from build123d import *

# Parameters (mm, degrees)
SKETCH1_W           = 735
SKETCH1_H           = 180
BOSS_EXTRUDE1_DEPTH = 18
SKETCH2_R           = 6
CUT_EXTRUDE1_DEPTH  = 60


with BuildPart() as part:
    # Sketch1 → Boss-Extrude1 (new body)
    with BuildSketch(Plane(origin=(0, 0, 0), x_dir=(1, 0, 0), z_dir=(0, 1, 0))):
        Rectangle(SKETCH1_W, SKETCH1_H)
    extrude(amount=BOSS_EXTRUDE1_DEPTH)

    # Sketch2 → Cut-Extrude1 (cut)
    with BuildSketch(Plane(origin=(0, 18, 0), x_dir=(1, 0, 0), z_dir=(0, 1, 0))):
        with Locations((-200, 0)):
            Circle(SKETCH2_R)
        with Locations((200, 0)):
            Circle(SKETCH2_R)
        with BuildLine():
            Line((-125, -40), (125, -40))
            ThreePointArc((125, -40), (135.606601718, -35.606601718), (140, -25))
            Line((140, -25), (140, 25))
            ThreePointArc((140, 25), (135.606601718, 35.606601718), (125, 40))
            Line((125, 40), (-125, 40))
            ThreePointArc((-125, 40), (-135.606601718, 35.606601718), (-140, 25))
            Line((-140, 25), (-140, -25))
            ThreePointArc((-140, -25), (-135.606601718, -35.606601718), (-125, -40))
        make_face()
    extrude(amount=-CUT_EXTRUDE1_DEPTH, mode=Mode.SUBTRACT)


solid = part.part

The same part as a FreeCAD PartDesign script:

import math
import FreeCAD as App
import Part
import Sketcher

V = App.Vector


def add_polygon(sketch, points):
    """Adds a closed chain of lines whose ends are joined by coincident constraints."""
    first, n = sketch.GeometryCount, len(points)
    for a, b in zip(points, points[1:] + points[:1]):
        sketch.addGeometry(Part.LineSegment(App.Vector(*a, 0), App.Vector(*b, 0)), False)
    for i in range(n):
        sketch.addConstraint(Sketcher.Constraint("Coincident", first + i, 2, first + (i + 1) % n, 1))

doc = App.newDocument("Part")
params = doc.addObject("Spreadsheet::Sheet", "Params")
for row, (alias, value) in enumerate([
    ("sketch1_width", "735 mm"),
    ("sketch1_height", "180 mm"),
    ("pad1_length", "18 mm"),
    ("sketch2_diameter", "12 mm"),
    ("sketch2_radius", "15 mm"),
    ("sketch2_width", "250 mm"),
    ("sketch2_height", "50 mm"),
    ("pocket1_length", "60 mm"),
], start=1):
    params.set(f"A{row}", alias)
    params.set(f"B{row}", "=" + value)
    params.setAlias(f"B{row}", alias)

body = doc.addObject("PartDesign::Body", "Body")

# Sketch on XZ plane
sketch1 = body.newObject("Sketcher::SketchObject", "Sketch")
sketch1.AttachmentSupport = (doc.getObject("XZ_Plane"), [""])
sketch1.MapMode = "FlatFace"
add_polygon(sketch1, [(-367.5, -90), (-367.5, 90), (367.5, 90), (367.5, -90)])  # lines 0-3
sketch1.addConstraint([
    Sketcher.Constraint("Vertical", 0),
    Sketcher.Constraint("Horizontal", 1),
    Sketcher.Constraint("Vertical", 2),
    Sketcher.Constraint("Horizontal", 3),
    Sketcher.Constraint("Symmetric", 0, 2, 2, 2, -1, 1),
    Sketcher.Constraint("DistanceX", 1, 1, 1, 2, 735.0),
    Sketcher.Constraint("DistanceY", 0, 1, 0, 2, 180.0),
])
sketch1.setExpression("Constraints[9]", "Params.sketch1_width")
sketch1.setExpression("Constraints[10]", "Params.sketch1_height")
pad1 = body.newObject("PartDesign::Pad", "Pad")
pad1.Profile = sketch1
pad1.setExpression("Length", "Params.pad1_length")
pad1.Reversed = True

# Sketch on XZ plane
sketch2 = body.newObject("Sketcher::SketchObject", "Sketch001")
sketch2.AttachmentSupport = (doc.getObject("XZ_Plane"), [""])
sketch2.MapMode = "FlatFace"
sketch2.AttachmentOffset = App.Placement(V(0, 0, -18), App.Rotation())
sketch2.addGeometry([
    Part.Circle(V(-200, 0, 0), V(0, 0, 1), 6),  # 0
    Part.Circle(V(200, 0, 0), V(0, 0, 1), 6),  # 1
    Part.LineSegment(V(-125, 40, 0), V(125, 40, 0)),  # 2
    Part.ArcOfCircle(Part.Circle(V(125, 25, 0), V(0, 0, 1), 15), math.radians(0), math.radians(90)),  # 3
    Part.LineSegment(V(140, 25, 0), V(140, -25, 0)),  # 4
    Part.ArcOfCircle(Part.Circle(V(125, -25, 0), V(0, 0, 1), 15), math.radians(-90), math.radians(0)),  # 5
    Part.LineSegment(V(125, -40, 0), V(-125, -40, 0)),  # 6
    Part.ArcOfCircle(Part.Circle(V(-125, -25, 0), V(0, 0, 1), 15), math.radians(180), math.radians(270)),  # 7
    Part.LineSegment(V(-140, -25, 0), V(-140, 25, 0)),  # 8
    Part.ArcOfCircle(Part.Circle(V(-125, 25, 0), V(0, 0, 1), 15), math.radians(90), math.radians(180)),  # 9
], False)
sketch2.addConstraint([
    Sketcher.Constraint("Tangent", 2, 2, 3, 2),
    Sketcher.Constraint("Tangent", 3, 1, 4, 1),
    Sketcher.Constraint("Tangent", 4, 2, 5, 2),
    Sketcher.Constraint("Tangent", 5, 1, 6, 1),
    Sketcher.Constraint("Tangent", 6, 2, 7, 2),
    Sketcher.Constraint("Tangent", 7, 1, 8, 1),
    Sketcher.Constraint("Tangent", 8, 2, 9, 2),
    Sketcher.Constraint("Tangent", 9, 1, 2, 1),
    Sketcher.Constraint("Horizontal", 2),
    Sketcher.Constraint("Vertical", 4),
    Sketcher.Constraint("Horizontal", 6),
    Sketcher.Constraint("Vertical", 8),
    Sketcher.Constraint("Equal", 0, 1),
    Sketcher.Constraint("Equal", 3, 5),
    Sketcher.Constraint("Equal", 5, 7),
    Sketcher.Constraint("Equal", 7, 9),
    Sketcher.Constraint("Symmetric", 0, 3, 1, 3, -1, 1),
    Sketcher.Constraint("Symmetric", 3, 3, 7, 3, -1, 1),
    Sketcher.Constraint("PointOnObject", 0, 3, -1),
    Sketcher.Constraint("Diameter", 0, 12.0),
    Sketcher.Constraint("Radius", 3, 15.0),
    Sketcher.Constraint("DistanceX", 2, 1, 2, 2, 250.0),
    Sketcher.Constraint("DistanceY", 4, 2, 4, 1, 50.0),
    Sketcher.Constraint("DistanceX", 0, 3, -1, 1, 200.0),
])
sketch2.setExpression("Constraints[19]", "Params.sketch2_diameter")
sketch2.setExpression("Constraints[20]", "Params.sketch2_radius")
sketch2.setExpression("Constraints[21]", "Params.sketch2_width")
sketch2.setExpression("Constraints[22]", "Params.sketch2_height")
pocket1 = body.newObject("PartDesign::Pocket", "Pocket")
pocket1.Profile = sketch2
pocket1.setExpression("Length", "Params.pocket1_length")
pocket1.Reversed = True

doc.recompute()
